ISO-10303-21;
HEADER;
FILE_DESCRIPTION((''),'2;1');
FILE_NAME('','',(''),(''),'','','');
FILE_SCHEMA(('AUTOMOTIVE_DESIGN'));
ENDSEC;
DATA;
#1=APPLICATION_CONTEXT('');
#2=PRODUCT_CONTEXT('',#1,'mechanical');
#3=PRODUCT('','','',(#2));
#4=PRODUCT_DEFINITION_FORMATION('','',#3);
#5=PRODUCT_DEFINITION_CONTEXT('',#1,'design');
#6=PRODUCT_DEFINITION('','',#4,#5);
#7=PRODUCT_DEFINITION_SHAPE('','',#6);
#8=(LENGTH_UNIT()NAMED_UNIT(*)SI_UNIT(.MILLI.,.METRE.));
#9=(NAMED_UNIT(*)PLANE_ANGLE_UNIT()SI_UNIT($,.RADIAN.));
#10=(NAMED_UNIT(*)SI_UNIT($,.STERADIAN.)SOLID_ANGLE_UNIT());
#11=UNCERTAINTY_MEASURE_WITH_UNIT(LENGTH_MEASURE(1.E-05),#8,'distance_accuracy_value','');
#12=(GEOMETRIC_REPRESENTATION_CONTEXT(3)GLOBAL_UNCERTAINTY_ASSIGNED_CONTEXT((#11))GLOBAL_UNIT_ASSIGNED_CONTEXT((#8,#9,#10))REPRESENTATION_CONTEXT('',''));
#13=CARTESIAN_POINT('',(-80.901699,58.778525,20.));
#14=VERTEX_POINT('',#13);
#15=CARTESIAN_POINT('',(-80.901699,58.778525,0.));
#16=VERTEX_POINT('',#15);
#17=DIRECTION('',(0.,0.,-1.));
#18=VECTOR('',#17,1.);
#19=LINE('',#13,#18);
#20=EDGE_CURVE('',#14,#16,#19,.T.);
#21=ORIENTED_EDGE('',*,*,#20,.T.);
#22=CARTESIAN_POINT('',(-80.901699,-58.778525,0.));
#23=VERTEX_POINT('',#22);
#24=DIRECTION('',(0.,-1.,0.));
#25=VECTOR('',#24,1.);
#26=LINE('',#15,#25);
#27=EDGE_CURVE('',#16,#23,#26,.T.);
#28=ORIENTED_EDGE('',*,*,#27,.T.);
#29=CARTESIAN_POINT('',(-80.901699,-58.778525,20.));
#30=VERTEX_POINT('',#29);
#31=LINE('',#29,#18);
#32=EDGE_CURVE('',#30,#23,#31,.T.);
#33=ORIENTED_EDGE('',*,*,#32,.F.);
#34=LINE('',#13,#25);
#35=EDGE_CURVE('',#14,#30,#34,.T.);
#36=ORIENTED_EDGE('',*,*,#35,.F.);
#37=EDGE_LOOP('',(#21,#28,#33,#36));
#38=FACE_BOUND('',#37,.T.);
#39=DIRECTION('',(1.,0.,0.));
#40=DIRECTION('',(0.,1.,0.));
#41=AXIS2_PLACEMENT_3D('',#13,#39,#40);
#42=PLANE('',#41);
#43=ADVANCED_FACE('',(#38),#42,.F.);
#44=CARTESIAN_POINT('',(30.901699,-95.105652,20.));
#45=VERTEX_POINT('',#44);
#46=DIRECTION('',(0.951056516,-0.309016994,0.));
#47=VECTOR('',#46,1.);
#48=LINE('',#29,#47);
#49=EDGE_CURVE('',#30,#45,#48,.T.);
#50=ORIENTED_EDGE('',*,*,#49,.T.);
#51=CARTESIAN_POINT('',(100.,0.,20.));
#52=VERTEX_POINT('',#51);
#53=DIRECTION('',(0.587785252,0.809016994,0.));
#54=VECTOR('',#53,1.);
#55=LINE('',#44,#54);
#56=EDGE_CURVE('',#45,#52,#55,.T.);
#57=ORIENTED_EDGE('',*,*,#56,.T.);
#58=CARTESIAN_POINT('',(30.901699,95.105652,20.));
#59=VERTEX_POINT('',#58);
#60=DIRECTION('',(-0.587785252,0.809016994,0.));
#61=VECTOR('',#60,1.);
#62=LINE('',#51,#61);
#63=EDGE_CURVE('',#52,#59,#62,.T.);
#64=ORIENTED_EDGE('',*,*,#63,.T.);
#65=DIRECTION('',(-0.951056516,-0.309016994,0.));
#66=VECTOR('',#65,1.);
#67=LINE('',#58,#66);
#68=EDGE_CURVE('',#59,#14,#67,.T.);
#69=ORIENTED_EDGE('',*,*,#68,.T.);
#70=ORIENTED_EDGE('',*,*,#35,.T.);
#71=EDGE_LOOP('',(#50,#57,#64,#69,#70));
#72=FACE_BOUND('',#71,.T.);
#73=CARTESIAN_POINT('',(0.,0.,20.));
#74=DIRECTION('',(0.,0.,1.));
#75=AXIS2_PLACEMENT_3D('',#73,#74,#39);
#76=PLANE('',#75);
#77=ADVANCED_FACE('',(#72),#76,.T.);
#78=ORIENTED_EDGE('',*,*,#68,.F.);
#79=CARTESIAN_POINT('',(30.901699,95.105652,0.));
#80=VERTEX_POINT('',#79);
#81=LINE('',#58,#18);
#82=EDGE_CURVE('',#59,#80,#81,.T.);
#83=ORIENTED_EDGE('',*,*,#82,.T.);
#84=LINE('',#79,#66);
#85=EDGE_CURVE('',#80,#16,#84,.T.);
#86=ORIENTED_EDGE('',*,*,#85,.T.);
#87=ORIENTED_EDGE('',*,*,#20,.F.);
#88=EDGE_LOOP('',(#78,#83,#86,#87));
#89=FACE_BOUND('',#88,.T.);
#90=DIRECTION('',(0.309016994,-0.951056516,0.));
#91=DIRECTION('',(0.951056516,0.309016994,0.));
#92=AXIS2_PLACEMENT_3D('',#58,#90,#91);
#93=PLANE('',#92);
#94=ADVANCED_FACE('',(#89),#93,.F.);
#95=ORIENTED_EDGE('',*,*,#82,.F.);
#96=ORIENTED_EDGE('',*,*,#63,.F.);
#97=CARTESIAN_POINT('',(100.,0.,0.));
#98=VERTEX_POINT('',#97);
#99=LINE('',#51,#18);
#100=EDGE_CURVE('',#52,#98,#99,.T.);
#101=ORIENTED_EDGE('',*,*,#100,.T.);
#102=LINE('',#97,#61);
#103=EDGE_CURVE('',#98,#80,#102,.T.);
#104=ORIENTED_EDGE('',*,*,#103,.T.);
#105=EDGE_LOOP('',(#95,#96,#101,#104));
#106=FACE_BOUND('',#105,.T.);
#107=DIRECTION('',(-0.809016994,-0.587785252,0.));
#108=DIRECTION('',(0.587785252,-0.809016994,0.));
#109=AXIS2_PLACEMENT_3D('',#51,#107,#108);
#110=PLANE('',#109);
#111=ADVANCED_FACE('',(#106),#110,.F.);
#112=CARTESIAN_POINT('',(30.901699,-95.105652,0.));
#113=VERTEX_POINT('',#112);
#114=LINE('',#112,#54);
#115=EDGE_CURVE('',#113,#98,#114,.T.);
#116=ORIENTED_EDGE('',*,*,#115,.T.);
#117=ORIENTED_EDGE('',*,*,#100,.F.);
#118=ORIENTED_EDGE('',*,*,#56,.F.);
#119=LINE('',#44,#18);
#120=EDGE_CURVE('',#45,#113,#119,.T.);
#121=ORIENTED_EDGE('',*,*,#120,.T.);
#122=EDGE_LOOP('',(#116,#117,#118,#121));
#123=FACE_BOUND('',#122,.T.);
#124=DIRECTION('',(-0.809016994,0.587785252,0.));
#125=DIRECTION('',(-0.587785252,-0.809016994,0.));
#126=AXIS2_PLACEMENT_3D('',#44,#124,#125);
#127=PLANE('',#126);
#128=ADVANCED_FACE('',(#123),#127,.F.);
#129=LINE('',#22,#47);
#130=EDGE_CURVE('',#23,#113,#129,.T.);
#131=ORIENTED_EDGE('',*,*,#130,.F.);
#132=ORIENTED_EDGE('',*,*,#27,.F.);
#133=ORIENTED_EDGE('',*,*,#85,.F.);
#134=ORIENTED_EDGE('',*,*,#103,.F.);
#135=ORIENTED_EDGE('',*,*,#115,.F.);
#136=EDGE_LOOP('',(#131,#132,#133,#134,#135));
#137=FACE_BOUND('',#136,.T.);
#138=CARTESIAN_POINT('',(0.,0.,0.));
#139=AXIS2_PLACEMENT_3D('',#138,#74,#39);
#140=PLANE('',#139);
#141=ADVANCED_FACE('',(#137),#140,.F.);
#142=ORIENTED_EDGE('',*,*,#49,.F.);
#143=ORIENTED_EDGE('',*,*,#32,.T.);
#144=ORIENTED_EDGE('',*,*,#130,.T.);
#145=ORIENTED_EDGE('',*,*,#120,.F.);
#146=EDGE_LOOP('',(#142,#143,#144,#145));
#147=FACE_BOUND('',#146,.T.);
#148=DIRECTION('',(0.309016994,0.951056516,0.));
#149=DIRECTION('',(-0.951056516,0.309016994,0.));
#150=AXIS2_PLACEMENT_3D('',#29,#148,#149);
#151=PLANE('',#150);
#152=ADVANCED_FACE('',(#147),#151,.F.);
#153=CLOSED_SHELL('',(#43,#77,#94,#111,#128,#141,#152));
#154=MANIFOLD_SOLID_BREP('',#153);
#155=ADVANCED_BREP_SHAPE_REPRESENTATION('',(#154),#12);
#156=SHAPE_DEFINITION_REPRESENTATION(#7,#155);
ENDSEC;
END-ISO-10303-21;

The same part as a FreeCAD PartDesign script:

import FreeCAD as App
import Part
import Sketcher
Q = App.Units.Quantity

doc = App.newDocument("Part")
body = doc.addObject("PartDesign::Body", "Body")

sketch1 = doc.addObject("Sketcher::SketchObject", "Sketch")
body.addObject(sketch1)
sketch1.AttachmentSupport = (doc.XY_Plane, [""])
sketch1.MapMode = "FlatFace"
sketch1.addGeometry([
    Part.LineSegment(App.Vector(100, 0, 0), App.Vector(31, 95, 0)),
    Part.LineSegment(App.Vector(31, 95, 0), App.Vector(-81, 59, 0)),
    Part.LineSegment(App.Vector(-81, 59, 0), App.Vector(-81, -59, 0)),
    Part.LineSegment(App.Vector(-81, -59, 0), App.Vector(31, -95, 0)),
    Part.LineSegment(App.Vector(31, -95, 0), App.Vector(100, 0, 0)),
], False)
sketch1.addConstraint([
    Sketcher.Constraint("Coincident", 0, 2, 1, 1),
    Sketcher.Constraint("Coincident", 1, 2, 2, 1),
    Sketcher.Constraint("Coincident", 2, 2, 3, 1),
    Sketcher.Constraint("Coincident", 3, 2, 4, 1),
    Sketcher.Constraint("Coincident", 4, 2, 0, 1),
    Sketcher.Constraint("Vertical", 2),
    Sketcher.Constraint("Symmetric", 0, 2, 3, 2, -1),
    Sketcher.Constraint("PointOnObject", 4, 2, -1),
    Sketcher.Constraint("Equal", 0, 1),
    Sketcher.Constraint("Equal", 1, 3),
    Sketcher.Constraint("Angle", 0, Q("126 deg")),
    Sketcher.Constraint("Angle", 1, Q("-162 deg")),
    Sketcher.Constraint("DistanceX", -1, 1, 4, 2, 100.0),
    Sketcher.Constraint("DistanceY", 2, 2, 2, 1, 117.55705),
])
pad1 = doc.addObject("PartDesign::Pad", "Pad")
body.addObject(pad1)
pad1.Profile = sketch1
pad1.Length = 20

doc.recompute()
